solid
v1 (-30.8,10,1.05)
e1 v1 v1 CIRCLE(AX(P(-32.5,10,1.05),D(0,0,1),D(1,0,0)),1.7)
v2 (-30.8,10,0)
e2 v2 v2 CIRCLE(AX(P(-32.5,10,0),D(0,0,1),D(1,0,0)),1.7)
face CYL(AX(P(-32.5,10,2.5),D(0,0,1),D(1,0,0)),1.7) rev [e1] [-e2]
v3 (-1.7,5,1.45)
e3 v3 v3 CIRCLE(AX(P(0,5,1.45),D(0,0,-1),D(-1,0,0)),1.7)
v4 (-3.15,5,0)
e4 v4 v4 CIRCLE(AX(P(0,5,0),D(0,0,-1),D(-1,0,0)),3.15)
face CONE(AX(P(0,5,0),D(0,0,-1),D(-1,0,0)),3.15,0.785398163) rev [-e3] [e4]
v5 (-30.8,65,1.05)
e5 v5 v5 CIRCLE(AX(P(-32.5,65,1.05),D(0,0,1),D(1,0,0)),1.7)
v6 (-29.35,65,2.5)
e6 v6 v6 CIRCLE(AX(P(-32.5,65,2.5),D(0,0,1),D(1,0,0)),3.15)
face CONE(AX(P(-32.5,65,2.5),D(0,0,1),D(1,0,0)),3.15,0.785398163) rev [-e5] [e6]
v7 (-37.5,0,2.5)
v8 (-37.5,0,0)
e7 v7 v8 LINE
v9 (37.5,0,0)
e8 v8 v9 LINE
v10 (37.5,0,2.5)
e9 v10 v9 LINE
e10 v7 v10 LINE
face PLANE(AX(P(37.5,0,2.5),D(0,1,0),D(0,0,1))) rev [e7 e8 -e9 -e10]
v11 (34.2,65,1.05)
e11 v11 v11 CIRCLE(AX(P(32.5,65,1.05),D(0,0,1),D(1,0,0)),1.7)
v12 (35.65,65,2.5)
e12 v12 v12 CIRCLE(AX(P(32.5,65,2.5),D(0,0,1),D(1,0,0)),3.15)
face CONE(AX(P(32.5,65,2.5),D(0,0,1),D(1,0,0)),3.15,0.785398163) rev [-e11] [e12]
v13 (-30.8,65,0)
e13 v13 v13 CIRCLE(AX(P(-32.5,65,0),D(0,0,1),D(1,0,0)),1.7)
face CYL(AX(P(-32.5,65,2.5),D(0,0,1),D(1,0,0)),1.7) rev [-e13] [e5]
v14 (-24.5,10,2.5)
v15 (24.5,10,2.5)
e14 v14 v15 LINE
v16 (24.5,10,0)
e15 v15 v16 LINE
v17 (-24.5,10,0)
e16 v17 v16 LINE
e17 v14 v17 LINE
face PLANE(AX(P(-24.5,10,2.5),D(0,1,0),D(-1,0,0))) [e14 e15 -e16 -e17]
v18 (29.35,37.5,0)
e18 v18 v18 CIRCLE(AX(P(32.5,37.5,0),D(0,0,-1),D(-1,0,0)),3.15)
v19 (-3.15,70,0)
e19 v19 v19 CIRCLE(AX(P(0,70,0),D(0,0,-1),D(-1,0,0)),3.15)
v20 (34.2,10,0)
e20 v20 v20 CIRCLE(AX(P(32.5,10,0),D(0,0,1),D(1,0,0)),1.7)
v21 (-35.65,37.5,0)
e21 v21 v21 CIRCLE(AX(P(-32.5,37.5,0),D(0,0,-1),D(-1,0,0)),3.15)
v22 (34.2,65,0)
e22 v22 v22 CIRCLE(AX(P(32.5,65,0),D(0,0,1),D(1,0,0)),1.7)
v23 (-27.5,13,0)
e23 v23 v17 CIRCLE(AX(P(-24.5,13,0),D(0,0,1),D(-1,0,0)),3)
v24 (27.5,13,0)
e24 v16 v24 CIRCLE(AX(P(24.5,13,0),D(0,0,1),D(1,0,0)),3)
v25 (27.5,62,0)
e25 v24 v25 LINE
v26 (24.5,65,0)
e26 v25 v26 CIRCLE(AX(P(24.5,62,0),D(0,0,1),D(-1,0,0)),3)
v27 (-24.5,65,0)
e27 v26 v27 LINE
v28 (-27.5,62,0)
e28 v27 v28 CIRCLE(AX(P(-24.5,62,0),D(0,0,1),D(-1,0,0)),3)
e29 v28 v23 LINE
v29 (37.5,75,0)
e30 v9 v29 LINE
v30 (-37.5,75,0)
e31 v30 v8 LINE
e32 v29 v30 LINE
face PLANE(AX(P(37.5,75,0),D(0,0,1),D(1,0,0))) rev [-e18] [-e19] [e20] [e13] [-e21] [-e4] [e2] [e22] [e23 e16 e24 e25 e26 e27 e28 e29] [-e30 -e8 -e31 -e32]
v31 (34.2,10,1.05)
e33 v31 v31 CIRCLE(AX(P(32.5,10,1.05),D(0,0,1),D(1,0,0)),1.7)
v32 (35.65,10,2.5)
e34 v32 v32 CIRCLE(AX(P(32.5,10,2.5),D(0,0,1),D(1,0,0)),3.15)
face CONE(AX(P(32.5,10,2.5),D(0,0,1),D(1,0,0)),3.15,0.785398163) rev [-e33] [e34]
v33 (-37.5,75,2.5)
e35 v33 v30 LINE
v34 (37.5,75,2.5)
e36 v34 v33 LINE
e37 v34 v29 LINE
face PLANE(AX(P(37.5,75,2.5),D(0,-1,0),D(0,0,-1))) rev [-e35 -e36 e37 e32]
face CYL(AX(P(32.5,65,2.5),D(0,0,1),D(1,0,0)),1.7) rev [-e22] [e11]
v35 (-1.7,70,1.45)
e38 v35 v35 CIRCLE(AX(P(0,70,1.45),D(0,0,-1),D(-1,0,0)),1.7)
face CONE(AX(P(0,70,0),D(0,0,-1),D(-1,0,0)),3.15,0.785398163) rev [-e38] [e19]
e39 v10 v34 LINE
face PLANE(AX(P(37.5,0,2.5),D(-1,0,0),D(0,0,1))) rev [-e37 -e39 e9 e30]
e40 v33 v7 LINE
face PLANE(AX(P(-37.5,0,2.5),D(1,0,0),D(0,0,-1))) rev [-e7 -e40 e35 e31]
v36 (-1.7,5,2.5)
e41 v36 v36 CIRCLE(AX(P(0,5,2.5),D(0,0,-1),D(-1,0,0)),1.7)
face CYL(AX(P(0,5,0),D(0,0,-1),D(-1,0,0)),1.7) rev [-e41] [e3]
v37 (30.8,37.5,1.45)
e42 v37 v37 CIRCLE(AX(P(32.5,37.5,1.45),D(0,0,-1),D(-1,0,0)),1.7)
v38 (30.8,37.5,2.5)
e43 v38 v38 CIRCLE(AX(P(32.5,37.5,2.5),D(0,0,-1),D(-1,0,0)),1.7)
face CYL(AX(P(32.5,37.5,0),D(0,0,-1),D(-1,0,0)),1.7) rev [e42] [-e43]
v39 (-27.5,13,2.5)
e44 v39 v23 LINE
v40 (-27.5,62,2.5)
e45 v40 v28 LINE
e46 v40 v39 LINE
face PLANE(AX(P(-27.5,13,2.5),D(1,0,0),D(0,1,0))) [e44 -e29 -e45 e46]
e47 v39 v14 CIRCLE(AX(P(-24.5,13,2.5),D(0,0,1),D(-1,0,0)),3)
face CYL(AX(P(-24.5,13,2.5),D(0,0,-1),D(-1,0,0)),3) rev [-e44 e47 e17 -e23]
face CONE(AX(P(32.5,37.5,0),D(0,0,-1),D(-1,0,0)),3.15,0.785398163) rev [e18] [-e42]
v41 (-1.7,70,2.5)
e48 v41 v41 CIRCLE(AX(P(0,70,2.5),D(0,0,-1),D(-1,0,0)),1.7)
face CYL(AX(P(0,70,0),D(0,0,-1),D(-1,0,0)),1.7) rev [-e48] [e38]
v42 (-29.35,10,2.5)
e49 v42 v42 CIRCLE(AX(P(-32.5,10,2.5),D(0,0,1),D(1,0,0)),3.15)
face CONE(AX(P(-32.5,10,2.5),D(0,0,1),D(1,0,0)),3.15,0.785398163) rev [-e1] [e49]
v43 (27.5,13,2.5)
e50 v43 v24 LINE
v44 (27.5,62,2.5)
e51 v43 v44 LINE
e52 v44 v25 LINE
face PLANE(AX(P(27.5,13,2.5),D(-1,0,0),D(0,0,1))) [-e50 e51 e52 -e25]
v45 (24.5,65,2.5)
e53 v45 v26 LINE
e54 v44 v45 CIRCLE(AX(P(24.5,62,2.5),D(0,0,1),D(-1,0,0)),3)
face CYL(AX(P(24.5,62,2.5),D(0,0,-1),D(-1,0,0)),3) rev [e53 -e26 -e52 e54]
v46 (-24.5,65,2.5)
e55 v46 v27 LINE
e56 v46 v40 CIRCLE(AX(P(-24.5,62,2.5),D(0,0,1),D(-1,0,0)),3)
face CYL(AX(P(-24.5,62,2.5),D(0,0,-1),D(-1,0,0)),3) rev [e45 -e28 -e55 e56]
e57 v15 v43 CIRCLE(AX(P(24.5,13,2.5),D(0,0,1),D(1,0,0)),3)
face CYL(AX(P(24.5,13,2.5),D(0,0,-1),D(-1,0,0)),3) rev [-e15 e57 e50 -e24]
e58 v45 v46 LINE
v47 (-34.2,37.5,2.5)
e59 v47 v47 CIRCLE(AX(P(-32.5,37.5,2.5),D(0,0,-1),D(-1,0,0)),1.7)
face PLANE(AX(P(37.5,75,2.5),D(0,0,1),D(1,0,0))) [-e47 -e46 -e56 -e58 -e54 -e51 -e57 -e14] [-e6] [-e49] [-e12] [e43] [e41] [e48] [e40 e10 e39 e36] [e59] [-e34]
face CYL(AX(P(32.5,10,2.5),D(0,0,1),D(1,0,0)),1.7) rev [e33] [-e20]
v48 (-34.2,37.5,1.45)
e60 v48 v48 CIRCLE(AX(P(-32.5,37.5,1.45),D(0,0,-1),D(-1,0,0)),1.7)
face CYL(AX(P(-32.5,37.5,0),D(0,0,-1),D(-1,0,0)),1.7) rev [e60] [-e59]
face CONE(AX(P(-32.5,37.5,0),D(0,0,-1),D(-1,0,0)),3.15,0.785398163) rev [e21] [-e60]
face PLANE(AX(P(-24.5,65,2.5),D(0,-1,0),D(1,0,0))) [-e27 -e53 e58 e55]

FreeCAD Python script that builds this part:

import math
import FreeCAD as App
import Part
import Sketcher

V = App.Vector
Q = App.Units.Quantity

doc = App.newDocument("Part")
params = doc.addObject("Spreadsheet::Sheet", "Params")
for row, (alias, value) in enumerate([
    ("sketch1_radius", "3 mm"),
    ("sketch1_width", "75 mm"),
    ("sketch1_width2", "49 mm"),
    ("pad1_length", "2.5 mm"),
    ("sketch2_width", "1.7 mm"),
    ("sketch2_height", "2.5 mm"),
    ("sketch2_width2", "3.15 mm"),
    ("groove_angle", "360 deg"),
    ("linearpattern_pitch", "65 mm"),
    ("linearpattern2_pitch", "85.146932 mm"),
    ("linearpattern3_pitch", "55 mm"),
    ("sketch3_width", "1.7 mm"),
    ("sketch3_height", "2.5 mm"),
    ("sketch3_width2", "3.15 mm"),
    ("groove2_angle", "360 deg"),
    ("linearpattern4_pitch", "45.961941 mm"),
    ("linearpattern5_pitch", "45.961941 mm"),
    ("linearpattern6_pitch", "65 mm"),
], start=1):
    params.set(f"A{row}", alias)
    params.set(f"B{row}", "=" + value)
    params.setAlias(f"B{row}", alias)

body = doc.addObject("PartDesign::Body", "Body")

# Sketch on XY plane
sketch1 = body.newObject("Sketcher::SketchObject", "Sketch")
sketch1.AttachmentSupport = (doc.getObject("XY_Plane"), [""])
sketch1.MapMode = "FlatFace"
sketch1.addGeometry([
    Part.LineSegment(V(-37.5, 75, 0), V(-37.5, 0, 0)),  # 0
    Part.LineSegment(V(-37.5, 0, 0), V(37.5, 0, 0)),  # 1
    Part.LineSegment(V(37.5, 0, 0), V(37.5, 75, 0)),  # 2
    Part.LineSegment(V(37.5, 75, 0), V(-37.5, 75, 0)),  # 3
    Part.LineSegment(V(24.5, 10, 0), V(-24.5, 10, 0)),  # 4
    Part.ArcOfCircle(Part.Circle(V(-24.5, 13, 0), V(0, 0, 1), 3), math.radians(180), math.radians(270)),  # 5
    Part.LineSegment(V(-27.5, 13, 0), V(-27.5, 62, 0)),  # 6
    Part.ArcOfCircle(Part.Circle(V(-24.5, 62, 0), V(0, 0, 1), 3), math.radians(90), math.radians(180)),  # 7
    Part.LineSegment(V(-24.5, 65, 0), V(24.5, 65, 0)),  # 8
    Part.ArcOfCircle(Part.Circle(V(24.5, 62, 0), V(0, 0, 1), 3), math.radians(0), math.radians(90)),  # 9
    Part.LineSegment(V(27.5, 62, 0), V(27.5, 13, 0)),  # 10
    Part.ArcOfCircle(Part.Circle(V(24.5, 13, 0), V(0, 0, 1), 3), math.radians(-90), math.radians(0)),  # 11
], False)
sketch1.addConstraint([
    Sketcher.Constraint("Coincident", 0, 2, 1, 1),
    Sketcher.Constraint("Coincident", 1, 2, 2, 1),
    Sketcher.Constraint("Coincident", 2, 2, 3, 1),
    Sketcher.Constraint("Coincident", 3, 2, 0, 1),
    Sketcher.Constraint("Tangent", 4, 2, 5, 2),
    Sketcher.Constraint("Tangent", 5, 1, 6, 1),
    Sketcher.Constraint("Tangent", 6, 2, 7, 2),
    Sketcher.Constraint("Tangent", 7, 1, 8, 1),
    Sketcher.Constraint("Tangent", 8, 2, 9, 2),
    Sketcher.Constraint("Tangent", 9, 1, 10, 1),
    Sketcher.Constraint("Tangent", 10, 2, 11, 2),
    Sketcher.Constraint("Tangent", 11, 1, 4, 1),
    Sketcher.Constraint("Vertical", 0),
    Sketcher.Constraint("Horizontal", 1),
    Sketcher.Constraint("Vertical", 2),
    Sketcher.Constraint("Horizontal", 3),
    Sketcher.Constraint("Horizontal", 4),
    Sketcher.Constraint("Vertical", 6),
    Sketcher.Constraint("Horizontal", 8),
    Sketcher.Constraint("Vertical", 10),
    Sketcher.Constraint("Equal", 5, 7),
    Sketcher.Constraint("Equal", 7, 9),
    Sketcher.Constraint("Equal", 9, 11),
    Sketcher.Constraint("Symmetric", 0, 2, 1, 2, -1, 1),
    Sketcher.Constraint("Equal", 3, 0),
    Sketcher.Constraint("Equal", 8, 6),
    Sketcher.Constraint("Radius", 5, 3.0),
    Sketcher.Constraint("DistanceX", 1, 1, 1, 2, 75.0),
    Sketcher.Constraint("DistanceX", 4, 2, 4, 1, 49.0),
    Sketcher.Constraint("DistanceY", -1, 1, 5, 3, 13.0),
    Sketcher.Constraint("DistanceX", 0, 2, 5, 3, 13.0),
])
sketch1.setExpression("Constraints[26]", "Params.sketch1_radius")
sketch1.setExpression("Constraints[27]", "Params.sketch1_width")
sketch1.setExpression("Constraints[28]", "Params.sketch1_width2")
pad1 = body.newObject("PartDesign::Pad", "Pad")
pad1.Profile = sketch1
pad1.setExpression("Length", "Params.pad1_length")

# Sketch on YZ plane
sketch2 = body.newObject("Sketcher::SketchObject", "Sketch001")
sketch2.AttachmentSupport = (doc.getObject("YZ_Plane"), [""])
sketch2.MapMode = "FlatFace"
sketch2.AttachmentOffset = App.Placement(V(0, 0, 32.5), App.Rotation())
sketch2.addGeometry([
    Part.LineSegment(V(10, 0, 0), V(10, 2.5, 0)),  # 0
    Part.LineSegment(V(10, 2.5, 0), V(6.8, 2.5, 0)),  # 1
    Part.LineSegment(V(6.8, 2.5, 0), V(8.3, 1.1, 0)),  # 2
    Part.LineSegment(V(8.3, 1.1, 0), V(8.3, 0, 0)),  # 3
    Part.LineSegment(V(8.3, 0, 0), V(10, 0, 0)),  # 4
], False)
sketch2.addGeometry(Part.LineSegment(V(10, 2.5, 0), V(10, 0, 0)), True)  # axis
sketch2.addConstraint([
    Sketcher.Constraint("Coincident", 0, 2, 1, 1),
    Sketcher.Constraint("Coincident", 1, 2, 2, 1),
    Sketcher.Constraint("Coincident", 2, 2, 3, 1),
    Sketcher.Constraint("Coincident", 3, 2, 4, 1),
    Sketcher.Constraint("Coincident", 4, 2, 0, 1),
    Sketcher.Constraint("Vertical", 0),
    Sketcher.Constraint("Horizontal", 1),
    Sketcher.Constraint("Vertical", 3),
    Sketcher.Constraint("Horizontal", 4),
    Sketcher.Constraint("Vertical", 5),
    Sketcher.Constraint("Coincident", 5, 1, 0, 2),
    Sketcher.Constraint("PointOnObject", 3, 2, -1),
    Sketcher.Constraint("PointOnObject", 5, 2, -1),
    Sketcher.Constraint("Angle", 2, Q("-45 deg")),
    Sketcher.Constraint("DistanceX", 4, 1, 4, 2, 1.7),
    Sketcher.Constraint("DistanceY", 0, 1, 0, 2, 2.5),
    Sketcher.Constraint("DistanceX", -1, 1, 0, 2, 10.0),
    Sketcher.Constraint("DistanceX", 1, 2, 1, 1, 3.15),
])
sketch2.setExpression("Constraints[14]", "Params.sketch2_width")
sketch2.setExpression("Constraints[15]", "Params.sketch2_height")
sketch2.setExpression("Constraints[17]", "Params.sketch2_width2")
groove = body.newObject("PartDesign::Groove", "Groove")
groove.Profile = sketch2
groove.ReferenceAxis = (sketch2, ["Axis0"])
groove.setExpression("Angle", "Params.groove_angle")
doc.recompute()

linearpattern = body.newObject("PartDesign::LinearPattern", "LinearPattern")
linearpattern.Originals = [groove]
linearpattern.Direction = (doc.getObject("X_Axis"), [""])
linearpattern.Mode = "offset"
linearpattern.setExpression("Offset", "Params.linearpattern_pitch")
linearpattern.Occurrences = 2
linearpattern.Reversed = True
body.Tip = linearpattern
doc.recompute()

datumline = body.newObject("PartDesign::Line", "DatumLine")
datumline.Placement = App.Placement(V(0, 0, 0), App.Rotation(V(0, 0, 1), V(-0.763386285, 0.645942241, 0)))
linearpattern2 = body.newObject("PartDesign::LinearPattern", "LinearPattern001")
linearpattern2.Originals = [groove]
linearpattern2.Direction = (datumline, [""])
linearpattern2.Mode = "offset"
linearpattern2.setExpression("Offset", "Params.linearpattern2_pitch")
linearpattern2.Occurrences = 2
body.Tip = linearpattern2
doc.recompute()

linearpattern3 = body.newObject("PartDesign::LinearPattern", "LinearPattern002")
linearpattern3.Originals = [groove]
linearpattern3.Direction = (doc.getObject("Y_Axis"), [""])
linearpattern3.Mode = "offset"
linearpattern3.setExpression("Offset", "Params.linearpattern3_pitch")
linearpattern3.Occurrences = 2
body.Tip = linearpattern3

# Sketch on YZ plane
sketch3 = body.newObject("Sketcher::SketchObject", "Sketch002")
sketch3.AttachmentSupport = (doc.getObject("YZ_Plane"), [""])
sketch3.MapMode = "FlatFace"
sketch3.addGeometry([
    Part.LineSegment(V(5, 2.5, 0), V(5, 0, 0)),  # 0
    Part.LineSegment(V(5, 0, 0), V(8.2, 0, 0)),  # 1
    Part.LineSegment(V(8.2, 0, 0), V(6.7, 1.4, 0)),  # 2
    Part.LineSegment(V(6.7, 1.4, 0), V(6.7, 2.5, 0)),  # 3
    Part.LineSegment(V(6.7, 2.5, 0), V(5, 2.5, 0)),  # 4
], False)
sketch3.addGeometry(Part.LineSegment(V(5, 0, 0), V(5, 2.5, 0)), True)  # axis
sketch3.addConstraint([
    Sketcher.Constraint("Coincident", 0, 2, 1, 1),
    Sketcher.Constraint("Coincident", 1, 2, 2, 1),
    Sketcher.Constraint("Coincident", 2, 2, 3, 1),
    Sketcher.Constraint("Coincident", 3, 2, 4, 1),
    Sketcher.Constraint("Coincident", 4, 2, 0, 1),
    Sketcher.Constraint("Vertical", 0),
    Sketcher.Constraint("Horizontal", 1),
    Sketcher.Constraint("Vertical", 3),
    Sketcher.Constraint("Horizontal", 4),
    Sketcher.Constraint("Vertical", 5),
    Sketcher.Constraint("Coincident", 5, 1, 0, 2),
    Sketcher.Constraint("PointOnObject", 0, 2, -1),
    Sketcher.Constraint("Horizontal", 3, 2, 5, 2),
    Sketcher.Constraint("Angle", 2, Q("135 deg")),
    Sketcher.Constraint("DistanceX", 4, 2, 4, 1, 1.7),
    Sketcher.Constraint("DistanceY", 0, 2, 0, 1, 2.5),
    Sketcher.Constraint("DistanceX", -1, 1, 0, 2, 5.0),
    Sketcher.Constraint("DistanceX", 1, 1, 1, 2, 3.15),
])
sketch3.setExpression("Constraints[14]", "Params.sketch3_width")
sketch3.setExpression("Constraints[15]", "Params.sketch3_height")
sketch3.setExpression("Constraints[17]", "Params.sketch3_width2")
groove2 = body.newObject("PartDesign::Groove", "Groove001")
groove2.Profile = sketch3
groove2.ReferenceAxis = (sketch3, ["Axis0"])
groove2.setExpression("Angle", "Params.groove2_angle")
doc.recompute()

datumline2 = body.newObject("PartDesign::Line", "DatumLine001")
datumline2.Placement = App.Placement(V(0, 0, 0), App.Rotation(V(0, 0, 1), V(-0.707106781, 0.707106781, 0)))
linearpattern4 = body.newObject("PartDesign::LinearPattern", "LinearPattern003")
linearpattern4.Originals = [groove2]
linearpattern4.Direction = (datumline2, [""])
linearpattern4.Mode = "offset"
linearpattern4.setExpression("Offset", "Params.linearpattern4_pitch")
linearpattern4.Occurrences = 2
body.Tip = linearpattern4
doc.recompute()

datumline3 = body.newObject("PartDesign::Line", "DatumLine002")
datumline3.Placement = App.Placement(V(0, 0, 0), App.Rotation(V(0, 0, 1), V(0.707106781, 0.707106781, 0)))
linearpattern5 = body.newObject("PartDesign::LinearPattern", "LinearPattern004")
linearpattern5.Originals = [groove2]
linearpattern5.Direction = (datumline3, [""])
linearpattern5.Mode = "offset"
linearpattern5.setExpression("Offset", "Params.linearpattern5_pitch")
linearpattern5.Occurrences = 2
body.Tip = linearpattern5
doc.recompute()

linearpattern6 = body.newObject("PartDesign::LinearPattern", "LinearPattern005")
linearpattern6.Originals = [groove2]
linearpattern6.Direction = (doc.getObject("Y_Axis"), [""])
linearpattern6.Mode = "offset"
linearpattern6.setExpression("Offset", "Params.linearpattern6_pitch")
linearpattern6.Occurrences = 2
body.Tip = linearpattern6

doc.recompute()
